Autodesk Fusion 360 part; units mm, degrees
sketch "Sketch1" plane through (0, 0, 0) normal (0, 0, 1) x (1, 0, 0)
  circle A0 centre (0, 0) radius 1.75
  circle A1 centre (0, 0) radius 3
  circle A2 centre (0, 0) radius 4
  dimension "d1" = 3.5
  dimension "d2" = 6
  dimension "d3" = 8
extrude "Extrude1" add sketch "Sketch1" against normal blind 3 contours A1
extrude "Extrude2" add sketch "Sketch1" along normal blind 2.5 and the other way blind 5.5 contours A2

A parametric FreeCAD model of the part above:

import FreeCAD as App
import Part
import Sketcher

V = App.Vector
Q = App.Units.Quantity

doc = App.newDocument("Part")
body = doc.addObject("PartDesign::Body", "Body")

# Sketch on XY plane
sketch1 = body.newObject("Sketcher::SketchObject", "Sketch")
sketch1.AttachmentSupport = (doc.getObject("XY_Plane"), [""])
sketch1.MapMode = "FlatFace"
sketch1.addGeometry([
    Part.Circle(V(0, 0, 0), V(0, 0, 1), 3),
    Part.Circle(V(0, 0, 0), V(0, 0, 1), 1.8),
], False)
sketch1.addConstraint([
    Sketcher.Constraint("Coincident", 0, 3, -1, 1),
    Sketcher.Constraint("Coincident", 1, 3, -1, 1),
    Sketcher.Constraint("Diameter", 0, Q("6 mm")),
    Sketcher.Constraint("Diameter", 1, Q("3.5 mm")),
])
pad1 = body.newObject("PartDesign::Pad", "Pad")
pad1.Profile = sketch1
pad1.Length = 3
pad1.Reversed = True

# Sketch on XY plane
sketch2 = body.newObject("Sketcher::SketchObject", "Sketch001")
sketch2.AttachmentSupport = (doc.getObject("XY_Plane"), [""])
sketch2.MapMode = "FlatFace"
sketch2.addGeometry([
    Part.Circle(V(0, 0, 0), V(0, 0, 1), 4),
    Part.Circle(V(0, 0, 0), V(0, 0, 1), 3),
], False)
sketch2.addConstraint([
    Sketcher.Constraint("Coincident", 0, 3, -1, 1),
    Sketcher.Constraint("Coincident", 1, 3, -1, 1),
    Sketcher.Constraint("Diameter", 0, Q("8 mm")),
    Sketcher.Constraint("Diameter", 1, Q("6 mm")),
])
pad2 = body.newObject("PartDesign::Pad", "Pad001")
pad2.Profile = sketch2
pad2.Type = "TwoLengths"
pad2.Length = 2.5
pad2.Length2 = 5.5

doc.recompute()
